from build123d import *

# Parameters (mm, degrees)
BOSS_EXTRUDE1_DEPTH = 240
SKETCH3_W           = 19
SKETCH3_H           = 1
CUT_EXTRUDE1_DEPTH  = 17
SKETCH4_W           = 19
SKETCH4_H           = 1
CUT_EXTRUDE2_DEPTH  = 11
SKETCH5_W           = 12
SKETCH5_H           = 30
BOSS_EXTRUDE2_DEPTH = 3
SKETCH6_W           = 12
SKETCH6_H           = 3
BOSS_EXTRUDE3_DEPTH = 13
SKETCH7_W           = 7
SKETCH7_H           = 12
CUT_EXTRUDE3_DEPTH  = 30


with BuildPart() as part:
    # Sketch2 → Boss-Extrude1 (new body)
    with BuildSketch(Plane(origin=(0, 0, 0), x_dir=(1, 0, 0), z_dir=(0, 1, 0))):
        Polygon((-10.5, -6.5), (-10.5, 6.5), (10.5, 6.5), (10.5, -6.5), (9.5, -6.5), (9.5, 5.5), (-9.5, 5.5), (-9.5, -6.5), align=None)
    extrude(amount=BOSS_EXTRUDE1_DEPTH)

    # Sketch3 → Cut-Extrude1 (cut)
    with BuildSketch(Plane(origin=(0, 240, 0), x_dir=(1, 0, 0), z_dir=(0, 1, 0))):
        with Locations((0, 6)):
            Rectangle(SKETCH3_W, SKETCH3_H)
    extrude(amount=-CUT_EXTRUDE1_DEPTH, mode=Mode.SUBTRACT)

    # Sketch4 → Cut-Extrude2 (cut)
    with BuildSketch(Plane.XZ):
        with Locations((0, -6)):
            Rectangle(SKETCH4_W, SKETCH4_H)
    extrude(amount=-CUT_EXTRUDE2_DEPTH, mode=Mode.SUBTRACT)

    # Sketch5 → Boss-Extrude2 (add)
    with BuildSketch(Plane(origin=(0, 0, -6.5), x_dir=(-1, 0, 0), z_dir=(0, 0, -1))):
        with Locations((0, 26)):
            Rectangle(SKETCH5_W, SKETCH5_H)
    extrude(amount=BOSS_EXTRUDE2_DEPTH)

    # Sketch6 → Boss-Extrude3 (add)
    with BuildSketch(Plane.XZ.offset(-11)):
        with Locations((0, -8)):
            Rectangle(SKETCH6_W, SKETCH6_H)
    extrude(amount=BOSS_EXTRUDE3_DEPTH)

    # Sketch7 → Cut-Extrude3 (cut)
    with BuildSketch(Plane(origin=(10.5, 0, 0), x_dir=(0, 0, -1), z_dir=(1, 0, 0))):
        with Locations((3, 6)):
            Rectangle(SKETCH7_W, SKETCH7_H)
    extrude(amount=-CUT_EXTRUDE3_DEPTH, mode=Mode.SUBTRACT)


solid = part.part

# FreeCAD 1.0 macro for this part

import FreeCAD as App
import Part
import Sketcher
from FreeCAD import Vector
Q = App.Units.Quantity


def add_polygon(sketch, points):
    """Adds a closed chain of lines whose ends are joined by coincident constraints."""
    first, n = sketch.GeometryCount, len(points)
    for a, b in zip(points, points[1:] + points[:1]):
        sketch.addGeometry(Part.LineSegment(App.Vector(*a, 0), App.Vector(*b, 0)), False)
    for i in range(n):
        sketch.addConstraint(Sketcher.Constraint("Coincident", first + i, 2, first + (i + 1) % n, 1))

doc = App.newDocument("Part")
params = doc.addObject("Spreadsheet::Sheet", "Params")
for row, (alias, value) in enumerate([
    ("sketch1_width", "1 mm"),
    ("sketch1_width2", "19 mm"),
    ("sketch1_height", "13 mm"),
    ("sketch1_height2", "12 mm"),
    ("pad1_length", "240 mm"),
    ("sketch2_width", "19 mm"),
    ("sketch2_height", "1 mm"),
    ("pocket1_length", "17 mm"),
    ("sketch3_width", "19 mm"),
    ("sketch3_height", "1 mm"),
    ("pocket2_length", "11 mm"),
    ("sketch4_width", "12 mm"),
    ("sketch4_height", "30 mm"),
    ("pad2_length", "3 mm"),
    ("sketch5_width", "12 mm"),
    ("sketch5_height", "3 mm"),
    ("pad3_length", "13 mm"),
    ("sketch6_width", "12 mm"),
    ("sketch6_height", "7 mm"),
    ("pocket3_length", "30 mm"),
], start=1):
    params.set(f"A{row}", alias)
    params.set(f"B{row}", "=" + value)
    params.setAlias(f"B{row}", alias)

body = doc.addObject("PartDesign::Body", "Body")

sketch1 = body.newObject("Sketcher::SketchObject", "Sketch")
sketch1.AttachmentSupport = (doc.getObject("XZ_Plane"), [""])
sketch1.MapMode = "FlatFace"
add_polygon(sketch1, [(-10.5, -6.5), (-10.5, 6.5), (-9.5, 6.5), (-9.5, -5.5), (9.5, -5.5), (9.5, 6.5), (10.5, 6.5), (10.5, -6.5)])
sketch1.addConstraint(Sketcher.Constraint("Vertical", 0))
sketch1.addConstraint(Sketcher.Constraint("Horizontal", 1))
sketch1.addConstraint(Sketcher.Constraint("Vertical", 2))
sketch1.addConstraint(Sketcher.Constraint("Horizontal", 3))
sketch1.addConstraint(Sketcher.Constraint("Vertical", 4))
sketch1.addConstraint(Sketcher.Constraint("Horizontal", 5))
sketch1.addConstraint(Sketcher.Constraint("Vertical", 6))
sketch1.addConstraint(Sketcher.Constraint("Horizontal", 7))
sketch1.addConstraint(Sketcher.Constraint("Symmetric", 0, 2, 6, 2, -1, 1))
sketch1.addConstraint(Sketcher.Constraint("Symmetric", 1, 2, 4, 2, -2))
sketch1.addConstraint(Sketcher.Constraint("DistanceX", 1, 1, 1, 2, Q("1 mm")))
sketch1.addConstraint(Sketcher.Constraint("DistanceX", 3, 1, 3, 2, Q("19 mm")))
sketch1.addConstraint(Sketcher.Constraint("DistanceY", 0, 1, 0, 2, Q("13 mm")))
sketch1.addConstraint(Sketcher.Constraint("DistanceY", 2, 2, 2, 1, Q("12 mm")))
sketch1.setExpression("Constraints[18]", "Params.sketch1_width")
sketch1.setExpression("Constraints[19]", "Params.sketch1_width2")
sketch1.setExpression("Constraints[20]", "Params.sketch1_height")
sketch1.setExpression("Constraints[21]", "Params.sketch1_height2")
pad1 = body.newObject("PartDesign::Pad", "Pad")
pad1.Profile = sketch1
pad1.setExpression("Length", "Params.pad1_length")
pad1.Reversed = True

sketch2 = body.newObject("Sketcher::SketchObject", "Sketch001")
sketch2.AttachmentSupport = (doc.getObject("XZ_Plane"), [""])
sketch2.MapMode = "FlatFace"
sketch2.AttachmentOffset = App.Placement(Vector(0, 0, -240), App.Rotation())
add_polygon(sketch2, [(-9.5, -6.5), (-9.5, -5.5), (9.5, -5.5), (9.5, -6.5)])
sketch2.addConstraint(Sketcher.Constraint("Vertical", 0))
sketch2.addConstraint(Sketcher.Constraint("Horizontal", 1))
sketch2.addConstraint(Sketcher.Constraint("Vertical", 2))
sketch2.addConstraint(Sketcher.Constraint("Horizontal", 3))
sketch2.addConstraint(Sketcher.Constraint("DistanceX", 1, 1, 1, 2, Q("19 mm")))
sketch2.addConstraint(Sketcher.Constraint("DistanceY", 0, 1, 0, 2, Q("1 mm")))
sketch2.addConstraint(Sketcher.Constraint("DistanceX", 0, 2, -1, 1, Q("9.5 mm")))
sketch2.addConstraint(Sketcher.Constraint("DistanceY", 0, 2, -1, 1, Q("5.5 mm")))
sketch2.setExpression("Constraints[8]", "Params.sketch2_width")
sketch2.setExpression("Constraints[9]", "Params.sketch2_height")
pocket1 = body.newObject("PartDesign::Pocket", "Pocket")
pocket1.Profile = sketch2
pocket1.setExpression("Length", "Params.pocket1_length")
pocket1.Reversed = True

sketch3 = body.newObject("Sketcher::SketchObject", "Sketch002")
sketch3.AttachmentSupport = (doc.getObject("XZ_Plane"), [""])
sketch3.MapMode = "FlatFace"
add_polygon(sketch3, [(-9.5, -5.5), (-9.5, -6.5), (9.5, -6.5), (9.5, -5.5)])
sketch3.addConstraint(Sketcher.Constraint("Vertical", 0))
sketch3.addConstraint(Sketcher.Constraint("Horizontal", 1))
sketch3.addConstraint(Sketcher.Constraint("Vertical", 2))
sketch3.addConstraint(Sketcher.Constraint("Horizontal", 3))
sketch3.addConstraint(Sketcher.Constraint("DistanceX", 1, 1, 1, 2, Q("19 mm")))
sketch3.addConstraint(Sketcher.Constraint("DistanceY", 0, 2, 0, 1, Q("1 mm")))
sketch3.addConstraint(Sketcher.Constraint("DistanceX", 0, 2, -1, 1, Q("9.5 mm")))
sketch3.addConstraint(Sketcher.Constraint("DistanceY", 0, 2, -1, 1, Q("6.5 mm")))
sketch3.setExpression("Constraints[8]", "Params.sketch3_width")
sketch3.setExpression("Constraints[9]", "Params.sketch3_height")
pocket2 = body.newObject("PartDesign::Pocket", "Pocket001")
pocket2.Profile = sketch3
pocket2.setExpression("Length", "Params.pocket2_length")

sketch4 = body.newObject("Sketcher::SketchObject", "Sketch003")
sketch4.AttachmentSupport = (doc.getObject("XY_Plane"), [""])
sketch4.MapMode = "FlatFace"
sketch4.AttachmentOffset = App.Placement(Vector(0, 0, -6.5), App.Rotation())
add_polygon(sketch4, [(6, 41), (6, 11), (-6, 11), (-6, 41)])
sketch4.addConstraint(Sketcher.Constraint("Vertical", 0))
sketch4.addConstraint(Sketcher.Constraint("Horizontal", 1))
sketch4.addConstraint(Sketcher.Constraint("Vertical", 2))
sketch4.addConstraint(Sketcher.Constraint("Horizontal", 3))
sketch4.addConstraint(Sketcher.Constraint("DistanceX", 1, 2, 1, 1, Q("12 mm")))
sketch4.addConstraint(Sketcher.Constraint("DistanceY", 0, 2, 0, 1, Q("30 mm")))
sketch4.addConstraint(Sketcher.Constraint("DistanceX", -1, 1, 0, 2, Q("6 mm")))
sketch4.addConstraint(Sketcher.Constraint("DistanceY", -1, 1, 0, 2, Q("11 mm")))
sketch4.setExpression("Constraints[8]", "Params.sketch4_width")
sketch4.setExpression("Constraints[9]", "Params.sketch4_height")
pad2 = body.newObject("PartDesign::Pad", "Pad001")
pad2.Profile = sketch4
pad2.setExpression("Length", "Params.pad2_length")
pad2.Reversed = True

sketch5 = body.newObject("Sketcher::SketchObject", "Sketch004")
sketch5.AttachmentSupport = (doc.getObject("XZ_Plane"), [""])
sketch5.MapMode = "FlatFace"
sketch5.AttachmentOffset = App.Placement(Vector(0, 0, -11), App.Rotation())
add_polygon(sketch5, [(-6, -6.5), (-6, -9.5), (6, -9.5), (6, -6.5)])
sketch5.addConstraint(Sketcher.Constraint("Vertical", 0))
sketch5.addConstraint(Sketcher.Constraint("Horizontal", 1))
sketch5.addConstraint(Sketcher.Constraint("Vertical", 2))
sketch5.addConstraint(Sketcher.Constraint("Horizontal", 3))
sketch5.addConstraint(Sketcher.Constraint("DistanceX", 1, 1, 1, 2, Q("12 mm")))
sketch5.addConstraint(Sketcher.Constraint("DistanceY", 0, 2, 0, 1, Q("3 mm")))
sketch5.addConstraint(Sketcher.Constraint("DistanceX", 0, 2, -1, 1, Q("6 mm")))
sketch5.addConstraint(Sketcher.Constraint("DistanceY", 0, 2, -1, 1, Q("9.5 mm")))
sketch5.setExpression("Constraints[8]", "Params.sketch5_width")
sketch5.setExpression("Constraints[9]", "Params.sketch5_height")
pad3 = body.newObject("PartDesign::Pad", "Pad002")
pad3.Profile = sketch5
pad3.setExpression("Length", "Params.pad3_length")

sketch6 = body.newObject("Sketcher::SketchObject", "Sketch005")
sketch6.AttachmentSupport = (doc.getObject("YZ_Plane"), [""])
sketch6.MapMode = "FlatFace"
sketch6.AttachmentOffset = App.Placement(Vector(0, 0, 10.5), App.Rotation())
add_polygon(sketch6, [(12, 0.5), (0, 0.5), (0, -6.5), (12, -6.5)])
sketch6.addConstraint(Sketcher.Constraint("Horizontal", 0))
sketch6.addConstraint(Sketcher.Constraint("Vertical", 1))
sketch6.addConstraint(Sketcher.Constraint("Horizontal", 2))
sketch6.addConstraint(Sketcher.Constraint("Vertical", 3))
sketch6.addConstraint(Sketcher.Constraint("PointOnObject", 0, 2, -2))
sketch6.addConstraint(Sketcher.Constraint("DistanceX", 0, 2, 0, 1, Q("12 mm")))
sketch6.addConstraint(Sketcher.Constraint("DistanceY", 1, 2, 1, 1, Q("7 mm")))
sketch6.addConstraint(Sketcher.Constraint("DistanceY", -1, 1, 0, 2, Q("0.5 mm")))
sketch6.setExpression("Constraints[9]", "Params.sketch6_width")
sketch6.setExpression("Constraints[10]", "Params.sketch6_height")
pocket3 = body.newObject("PartDesign::Pocket", "Pocket002")
pocket3.Profile = sketch6
pocket3.setExpression("Length", "Params.pocket3_length")

doc.recompute()
